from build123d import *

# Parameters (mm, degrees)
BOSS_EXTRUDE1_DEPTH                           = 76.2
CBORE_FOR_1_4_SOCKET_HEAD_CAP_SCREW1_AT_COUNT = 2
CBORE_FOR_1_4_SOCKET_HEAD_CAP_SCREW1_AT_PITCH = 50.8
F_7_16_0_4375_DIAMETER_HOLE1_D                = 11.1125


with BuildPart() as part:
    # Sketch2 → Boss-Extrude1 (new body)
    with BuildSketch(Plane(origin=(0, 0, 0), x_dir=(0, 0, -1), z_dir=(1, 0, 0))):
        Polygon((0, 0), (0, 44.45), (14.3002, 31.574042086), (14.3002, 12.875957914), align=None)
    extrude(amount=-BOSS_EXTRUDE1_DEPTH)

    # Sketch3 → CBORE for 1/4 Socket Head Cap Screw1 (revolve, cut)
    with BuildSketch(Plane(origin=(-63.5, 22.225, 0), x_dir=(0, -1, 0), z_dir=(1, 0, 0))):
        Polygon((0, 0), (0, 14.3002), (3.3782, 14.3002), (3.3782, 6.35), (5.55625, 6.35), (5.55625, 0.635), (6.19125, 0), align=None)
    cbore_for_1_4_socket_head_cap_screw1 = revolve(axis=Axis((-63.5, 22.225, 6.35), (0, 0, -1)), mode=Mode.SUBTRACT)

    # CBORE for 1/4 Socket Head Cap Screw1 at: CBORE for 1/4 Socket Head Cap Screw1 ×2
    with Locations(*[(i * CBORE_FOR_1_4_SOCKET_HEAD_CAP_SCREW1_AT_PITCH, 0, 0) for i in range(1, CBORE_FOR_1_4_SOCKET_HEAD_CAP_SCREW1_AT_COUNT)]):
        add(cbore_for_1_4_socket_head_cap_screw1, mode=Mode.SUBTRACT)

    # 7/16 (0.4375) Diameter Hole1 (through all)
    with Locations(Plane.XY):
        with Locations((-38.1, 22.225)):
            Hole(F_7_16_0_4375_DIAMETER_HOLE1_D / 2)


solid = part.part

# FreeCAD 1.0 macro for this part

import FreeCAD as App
import Part
import Sketcher
from FreeCAD import Vector
Q = App.Units.Quantity


def add_polygon(sketch, points):
    """Adds a closed chain of lines whose ends are joined by coincident constraints."""
    first, n = sketch.GeometryCount, len(points)
    for a, b in zip(points, points[1:] + points[:1]):
        sketch.addGeometry(Part.LineSegment(App.Vector(*a, 0), App.Vector(*b, 0)), False)
    for i in range(n):
        sketch.addConstraint(Sketcher.Constraint("Coincident", first + i, 2, first + (i + 1) % n, 1))

doc = App.newDocument("Part")
body = doc.addObject("PartDesign::Body", "Body")

# Sketch on YZ plane
sketch1 = doc.addObject("Sketcher::SketchObject", "Sketch")
body.addObject(sketch1)
sketch1.AttachmentSupport = (doc.YZ_Plane, [""])
sketch1.MapMode = "FlatFace"
add_polygon(sketch1, [(44, 0), (0, 0), (13, -14), (32, -14)])  # lines 0-3
sketch1.addConstraint(Sketcher.Constraint("Horizontal", 0))
sketch1.addConstraint(Sketcher.Constraint("Horizontal", 2))
sketch1.addConstraint(Sketcher.Constraint("Coincident", 0, 2, -1, 1))
sketch1.addConstraint(Sketcher.Constraint("Equal", 1, 3))
sketch1.addConstraint(Sketcher.Constraint("Angle", 1, Q("-48 deg")))
sketch1.addConstraint(Sketcher.Constraint("DistanceX", 0, 2, 0, 1, Q("1.75 in")))
sketch1.addConstraint(Sketcher.Constraint("DistanceY", 1, 2, -1, 1, Q("0.563 in")))
pad1 = doc.addObject("PartDesign::Pad", "Pad")
body.addObject(pad1)
pad1.Profile = sketch1
pad1.Length = Q("3 in")
pad1.Reversed = True

# Sketch on YZ plane
sketch2 = doc.addObject("Sketcher::SketchObject", "Sketch001")
body.addObject(sketch2)
sketch2.AttachmentSupport = (doc.YZ_Plane, [""])
sketch2.MapMode = "FlatFace"
sketch2.AttachmentOffset = App.Placement(Vector(0, 0, -2.5 * 25.4), App.Rotation())
add_polygon(sketch2, [(22.2, -14.3), (22.2, 0), (16, 0), (16.7, -0.6), (16.7, -6.3), (18.8, -6.3), (18.8, -14.3)])  # lines 0-6
sketch2.addGeometry(Part.LineSegment(Vector(22.2, 0, 0), Vector(22.2, -14.3, 0)), True)  # axis
sketch2.addConstraint(Sketcher.Constraint("Vertical", 0))
sketch2.addConstraint(Sketcher.Constraint("Horizontal", 1))
sketch2.addConstraint(Sketcher.Constraint("Vertical", 3))
sketch2.addConstraint(Sketcher.Constraint("Horizontal", 4))
sketch2.addConstraint(Sketcher.Constraint("Vertical", 5))
sketch2.addConstraint(Sketcher.Constraint("Horizontal", 6))
sketch2.addConstraint(Sketcher.Constraint("Vertical", 7))
sketch2.addConstraint(Sketcher.Constraint("Coincident", 7, 1, 0, 2))
sketch2.addConstraint(Sketcher.Constraint("PointOnObject", 0, 2, -1))
sketch2.addConstraint(Sketcher.Constraint("Horizontal", 5, 2, 7, 2))
sketch2.addConstraint(Sketcher.Constraint("Angle", 2, Q("-45 deg")))
sketch2.addConstraint(Sketcher.Constraint("DistanceX", 6, 1, 6, 2, Q("0.133 in")))
sketch2.addConstraint(Sketcher.Constraint("DistanceY", 0, 1, 0, 2, Q("0.563 in")))
sketch2.addConstraint(Sketcher.Constraint("DistanceY", 3, 2, 3, 1, Q("0.225 in")))
sketch2.addConstraint(Sketcher.Constraint("DistanceY", 5, 2, 5, 1, Q("0.313 in")))
sketch2.addConstraint(Sketcher.Constraint("DistanceX", -1, 1, 0, 2, Q("0.875 in")))
sketch2.addConstraint(Sketcher.Constraint("DistanceX", -1, 1, 2, 2, Q("0.65625 in")))
groove = doc.addObject("PartDesign::Groove", "Groove")
body.addObject(groove)
groove.Profile = sketch2
groove.ReferenceAxis = (sketch2, ["Axis0"])
groove.Angle = 360
doc.recompute()

linearpattern = doc.addObject("PartDesign::LinearPattern", "LinearPattern")
body.addObject(linearpattern)
linearpattern.Originals = [groove]
linearpattern.Direction = (doc.X_Axis, [""])
linearpattern.Mode = "offset"
linearpattern.Offset = Q("2 in")
linearpattern.Occurrences = 2
body.Tip = linearpattern

# Sketch on XY plane
sketch3 = doc.addObject("Sketcher::SketchObject", "Sketch002")
body.addObject(sketch3)
sketch3.AttachmentSupport = (doc.XY_Plane, [""])
sketch3.MapMode = "FlatFace"
sketch3.addGeometry(Part.Circle(Vector(-38, 22, 0), Vector(0, 0, 1), 6), False)
sketch3.addConstraint(Sketcher.Constraint("Diameter", 0, Q("0.4375 in")))
sketch3.addConstraint(Sketcher.Constraint("DistanceX", 0, 3, -1, 1, Q("1.5 in")))
sketch3.addConstraint(Sketcher.Constraint("DistanceY", -1, 1, 0, 3, Q("0.875 in")))
doc.recompute()
hole = doc.addObject("PartDesign::Hole", "Hole")
body.addObject(hole)
hole.Profile = sketch3
hole.ThreadType = "None"
hole.Diameter = Q("0.4375 in")
hole.DepthType = "ThroughAll"

doc.recompute()
